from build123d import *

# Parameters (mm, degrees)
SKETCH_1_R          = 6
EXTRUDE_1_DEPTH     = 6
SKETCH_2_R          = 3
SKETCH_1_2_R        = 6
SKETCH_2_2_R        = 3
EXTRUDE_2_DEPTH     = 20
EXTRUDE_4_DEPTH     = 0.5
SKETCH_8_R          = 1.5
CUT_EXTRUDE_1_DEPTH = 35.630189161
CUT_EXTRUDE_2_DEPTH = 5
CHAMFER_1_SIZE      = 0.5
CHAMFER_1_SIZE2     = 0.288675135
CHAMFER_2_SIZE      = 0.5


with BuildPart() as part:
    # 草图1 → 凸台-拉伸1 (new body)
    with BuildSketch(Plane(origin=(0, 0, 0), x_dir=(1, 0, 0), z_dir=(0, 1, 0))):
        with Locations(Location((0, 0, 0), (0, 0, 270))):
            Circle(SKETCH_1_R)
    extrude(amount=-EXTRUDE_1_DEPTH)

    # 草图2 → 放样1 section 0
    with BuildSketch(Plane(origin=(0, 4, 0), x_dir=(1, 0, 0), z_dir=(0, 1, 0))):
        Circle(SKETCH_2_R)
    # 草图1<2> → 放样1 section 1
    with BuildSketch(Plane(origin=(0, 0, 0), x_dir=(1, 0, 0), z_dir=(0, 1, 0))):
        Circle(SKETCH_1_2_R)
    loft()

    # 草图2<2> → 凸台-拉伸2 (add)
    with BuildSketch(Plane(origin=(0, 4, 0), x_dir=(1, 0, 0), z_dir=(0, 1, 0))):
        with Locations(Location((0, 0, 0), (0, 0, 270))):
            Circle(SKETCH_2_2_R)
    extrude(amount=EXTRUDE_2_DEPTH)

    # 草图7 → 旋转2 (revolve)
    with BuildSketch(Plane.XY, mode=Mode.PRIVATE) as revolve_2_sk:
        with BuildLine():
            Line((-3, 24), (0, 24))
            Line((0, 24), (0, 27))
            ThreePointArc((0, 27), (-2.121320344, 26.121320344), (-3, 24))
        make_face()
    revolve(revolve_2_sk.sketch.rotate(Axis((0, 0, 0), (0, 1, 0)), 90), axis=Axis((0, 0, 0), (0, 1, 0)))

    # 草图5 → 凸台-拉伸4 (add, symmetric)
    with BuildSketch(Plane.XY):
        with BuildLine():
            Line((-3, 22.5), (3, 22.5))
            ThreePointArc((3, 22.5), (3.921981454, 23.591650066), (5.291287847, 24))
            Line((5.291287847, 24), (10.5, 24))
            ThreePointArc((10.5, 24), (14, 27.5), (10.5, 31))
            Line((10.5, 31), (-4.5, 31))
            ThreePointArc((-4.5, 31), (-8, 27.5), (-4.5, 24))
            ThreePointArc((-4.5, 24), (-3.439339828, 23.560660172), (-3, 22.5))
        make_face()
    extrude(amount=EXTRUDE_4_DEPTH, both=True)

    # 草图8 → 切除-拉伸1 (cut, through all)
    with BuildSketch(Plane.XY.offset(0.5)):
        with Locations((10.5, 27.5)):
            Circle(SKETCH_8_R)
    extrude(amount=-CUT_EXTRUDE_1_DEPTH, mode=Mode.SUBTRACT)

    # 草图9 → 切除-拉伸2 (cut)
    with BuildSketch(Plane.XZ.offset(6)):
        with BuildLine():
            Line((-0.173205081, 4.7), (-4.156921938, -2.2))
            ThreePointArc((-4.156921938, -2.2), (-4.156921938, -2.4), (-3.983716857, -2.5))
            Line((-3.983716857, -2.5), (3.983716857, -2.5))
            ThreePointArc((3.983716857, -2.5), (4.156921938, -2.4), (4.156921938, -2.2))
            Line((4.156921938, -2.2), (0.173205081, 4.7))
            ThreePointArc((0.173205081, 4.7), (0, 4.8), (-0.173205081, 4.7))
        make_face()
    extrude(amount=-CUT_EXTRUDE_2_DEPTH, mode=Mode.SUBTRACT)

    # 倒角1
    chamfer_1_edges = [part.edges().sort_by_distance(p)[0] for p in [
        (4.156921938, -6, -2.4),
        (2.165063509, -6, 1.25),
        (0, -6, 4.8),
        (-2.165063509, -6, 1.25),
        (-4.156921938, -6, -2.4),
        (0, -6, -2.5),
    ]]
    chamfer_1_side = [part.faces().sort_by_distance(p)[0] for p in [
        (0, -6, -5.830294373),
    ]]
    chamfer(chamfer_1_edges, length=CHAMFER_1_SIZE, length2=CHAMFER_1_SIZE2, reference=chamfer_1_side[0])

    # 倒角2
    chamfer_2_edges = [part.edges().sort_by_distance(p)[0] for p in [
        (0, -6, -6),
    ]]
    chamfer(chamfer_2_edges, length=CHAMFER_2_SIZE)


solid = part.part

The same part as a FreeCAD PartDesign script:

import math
import FreeCAD as App
import Part
import Sketcher
Q = App.Units.Quantity


def edges_at(feature, points):
    """Names of the edges that pass closest to the given points."""
    edges = feature.Shape.Edges
    near = lambda p: min(range(len(edges)), key=lambda i: edges[i].distToShape(Part.Vertex(*p))[0])
    return sorted({f"Edge{near(p) + 1}" for p in points})

doc = App.newDocument("Part")
body = doc.addObject("PartDesign::Body", "Body")

# Sketch on XZ plane
sketch1 = doc.addObject("Sketcher::SketchObject", "Sketch")
body.addObject(sketch1)
sketch1.AttachmentSupport = (doc.XZ_Plane, [""])
sketch1.MapMode = "FlatFace"
sketch1.addGeometry(Part.Circle(App.Vector(0, 0, 0), App.Vector(0, 0, 1), 6), False)
sketch1.addConstraint(Sketcher.Constraint("Coincident", 0, 3, -1, 1))
sketch1.addConstraint(Sketcher.Constraint("Diameter", 0, Q("12 mm")))
pad1 = doc.addObject("PartDesign::Pad", "Pad")
body.addObject(pad1)
pad1.Profile = sketch1
pad1.Length = 6

# Sketch on XZ plane
sketch2 = doc.addObject("Sketcher::SketchObject", "Sketch001")
body.addObject(sketch2)
sketch2.AttachmentSupport = (doc.XZ_Plane, [""])
sketch2.MapMode = "FlatFace"
sketch2.AttachmentOffset = App.Placement(App.Vector(0, 0, -4), App.Rotation())
sketch2.addGeometry(Part.Circle(App.Vector(0, 0, 0), App.Vector(0, 0, 1), 3), False)
sketch2.addConstraint(Sketcher.Constraint("Coincident", 0, 3, -1, 1))
sketch2.addConstraint(Sketcher.Constraint("Diameter", 0, Q("6 mm")))

# Sketch on XZ plane
sketch3 = doc.addObject("Sketcher::SketchObject", "Sketch002")
body.addObject(sketch3)
sketch3.AttachmentSupport = (doc.XZ_Plane, [""])
sketch3.MapMode = "FlatFace"
sketch3.addGeometry(Part.Circle(App.Vector(0, 0, 0), App.Vector(0, 0, 1), 6), False)
sketch3.addConstraint(Sketcher.Constraint("Coincident", 0, 3, -1, 1))
sketch3.addConstraint(Sketcher.Constraint("Diameter", 0, Q("12 mm")))

additiveloft = doc.addObject("PartDesign::AdditiveLoft", "AdditiveLoft")
body.addObject(additiveloft)
additiveloft.Profile = sketch2
additiveloft.Sections = [sketch3]

# Sketch on XZ plane
sketch4 = doc.addObject("Sketcher::SketchObject", "Sketch003")
body.addObject(sketch4)
sketch4.AttachmentSupport = (doc.XZ_Plane, [""])
sketch4.MapMode = "FlatFace"
sketch4.AttachmentOffset = App.Placement(App.Vector(0, 0, -4), App.Rotation())
sketch4.addGeometry(Part.Circle(App.Vector(0, 0, 0), App.Vector(0, 0, 1), 3), False)
sketch4.addConstraint(Sketcher.Constraint("Coincident", 0, 3, -1, 1))
sketch4.addConstraint(Sketcher.Constraint("Diameter", 0, Q("6 mm")))
pad2 = doc.addObject("PartDesign::Pad", "Pad001")
body.addObject(pad2)
pad2.Profile = sketch4
pad2.Length = 20
pad2.Reversed = True

# Sketch on XY plane
sketch5 = doc.addObject("Sketcher::SketchObject", "Sketch004")
body.addObject(sketch5)
sketch5.AttachmentSupport = (doc.XY_Plane, [""])
sketch5.MapMode = "FlatFace"
sketch5.addGeometry(Part.LineSegment(App.Vector(-3, 24, 0), App.Vector(0, 24, 0)), False)
sketch5.addGeometry(Part.LineSegment(App.Vector(0, 24, 0), App.Vector(0, 27, 0)), False)
sketch5.addGeometry(Part.ArcOfCircle(Part.Circle(App.Vector(0, 24, 0), App.Vector(0, 0, 1), 3), math.radians(90), math.radians(180)), False)
sketch5.addConstraint(Sketcher.Constraint("Coincident", 0, 2, 1, 1))
sketch5.addConstraint(Sketcher.Constraint("Coincident", 1, 2, 2, 1))
sketch5.addConstraint(Sketcher.Constraint("Coincident", 2, 2, 0, 1))
sketch5.addConstraint(Sketcher.Constraint("Horizontal", 0))
sketch5.addConstraint(Sketcher.Constraint("Vertical", 1))
sketch5.addConstraint(Sketcher.Constraint("Coincident", 0, 2, 2, 3))
sketch5.addConstraint(Sketcher.Constraint("PointOnObject", 2, 3, -2))
sketch5.addConstraint(Sketcher.Constraint("Radius", 2, Q("3 mm")))
sketch5.addConstraint(Sketcher.Constraint("DistanceY", -1, 1, 2, 3, Q("24 mm")))
revolution = doc.addObject("PartDesign::Revolution", "Revolution")
body.addObject(revolution)
revolution.Profile = sketch5
revolution.ReferenceAxis = (sketch5, ["V_Axis"])
revolution.Angle = 360

# Sketch on XY plane
sketch6 = doc.addObject("Sketcher::SketchObject", "Sketch005")
body.addObject(sketch6)
sketch6.AttachmentSupport = (doc.XY_Plane, [""])
sketch6.MapMode = "FlatFace"
sketch6.addGeometry(Part.LineSegment(App.Vector(-3, 22.5, 0), App.Vector(3, 22.5, 0)), False)
sketch6.addGeometry(Part.ArcOfCircle(Part.Circle(App.Vector(5.291288, 21.5, 0), App.Vector(0, 0, 1), 2.5), math.radians(90), math.radians(156.421821)), False)
sketch6.addGeometry(Part.LineSegment(App.Vector(5.291288, 24, 0), App.Vector(10.5, 24, 0)), False)
sketch6.addGeometry(Part.ArcOfCircle(Part.Circle(App.Vector(10.5, 27.5, 0), App.Vector(0, 0, 1), 3.5), math.radians(-90), math.radians(90)), False)
sketch6.addGeometry(Part.LineSegment(App.Vector(10.5, 31, 0), App.Vector(-4.5, 31, 0)), False)
sketch6.addGeometry(Part.ArcOfCircle(Part.Circle(App.Vector(-4.5, 27.5, 0), App.Vector(0, 0, 1), 3.5), math.radians(90), math.radians(270)), False)
sketch6.addGeometry(Part.ArcOfCircle(Part.Circle(App.Vector(-4.5, 22.5, 0), App.Vector(0, 0, 1), 1.5), math.radians(0), math.radians(90)), False)
sketch6.addConstraint(Sketcher.Constraint("Coincident", 0, 2, 1, 2))
sketch6.addConstraint(Sketcher.Constraint("Tangent", 1, 1, 2, 1))
sketch6.addConstraint(Sketcher.Constraint("Tangent", 2, 2, 3, 1))
sketch6.addConstraint(Sketcher.Constraint("Tangent", 3, 2, 4, 1))
sketch6.addConstraint(Sketcher.Constraint("Tangent", 4, 2, 5, 1))
sketch6.addConstraint(Sketcher.Constraint("Tangent", 5, 2, 6, 2))
sketch6.addConstraint(Sketcher.Constraint("Coincident", 6, 1, 0, 1))
sketch6.addConstraint(Sketcher.Constraint("Horizontal", 0))
sketch6.addConstraint(Sketcher.Constraint("Horizontal", 2))
sketch6.addConstraint(Sketcher.Constraint("Horizontal", 4))
sketch6.addConstraint(Sketcher.Constraint("Equal", 3, 5))
sketch6.addConstraint(Sketcher.Constraint("Horizontal", 6, 3, 0, 2))
sketch6.addConstraint(Sketcher.Constraint("Vertical", 5, 3, 6, 3))
sketch6.addConstraint(Sketcher.Constraint("Radius", 1, Q("2.5 mm")))
sketch6.addConstraint(Sketcher.Constraint("Radius", 3, Q("3.5 mm")))
sketch6.addConstraint(Sketcher.Constraint("Radius", 6, Q("1.5 mm")))
sketch6.addConstraint(Sketcher.Constraint("DistanceX", 0, 1, 0, 2, Q("6 mm")))
sketch6.addConstraint(Sketcher.Constraint("DistanceX", 4, 2, 4, 1, Q("15 mm")))
sketch6.addConstraint(Sketcher.Constraint("DistanceX", -1, 1, 0, 2, Q("3 mm")))
sketch6.addConstraint(Sketcher.Constraint("DistanceY", -1, 1, 1, 1, Q("24 mm")))
pad3 = doc.addObject("PartDesign::Pad", "Pad002")
body.addObject(pad3)
pad3.Profile = sketch6
pad3.Length = 1
pad3.Midplane = True

# Sketch on XY plane
sketch7 = doc.addObject("Sketcher::SketchObject", "Sketch006")
body.addObject(sketch7)
sketch7.AttachmentSupport = (doc.XY_Plane, [""])
sketch7.MapMode = "FlatFace"
sketch7.AttachmentOffset = App.Placement(App.Vector(0, 0, 0.5), App.Rotation())
sketch7.addGeometry(Part.Circle(App.Vector(10.5, 27.5, 0), App.Vector(0, 0, 1), 1.5), False)
sketch7.addConstraint(Sketcher.Constraint("Diameter", 0, Q("3 mm")))
sketch7.addConstraint(Sketcher.Constraint("DistanceX", -1, 1, 0, 3, Q("10.5 mm")))
sketch7.addConstraint(Sketcher.Constraint("DistanceY", -1, 1, 0, 3, Q("27.5 mm")))
pocket1 = doc.addObject("PartDesign::Pocket", "Pocket")
body.addObject(pocket1)
pocket1.Profile = sketch7
pocket1.Type = "ThroughAll"

# Sketch on XZ plane
sketch8 = doc.addObject("Sketcher::SketchObject", "Sketch007")
body.addObject(sketch8)
sketch8.AttachmentSupport = (doc.XZ_Plane, [""])
sketch8.MapMode = "FlatFace"
sketch8.AttachmentOffset = App.Placement(App.Vector(0, 0, 6), App.Rotation())
sketch8.addGeometry(Part.LineSegment(App.Vector(-0.173205, 4.7, 0), App.Vector(-4.156922, -2.2, 0)), False)
sketch8.addGeometry(Part.ArcOfCircle(Part.Circle(App.Vector(-3.983717, -2.3, 0), App.Vector(0, 0, 1), 0.2), math.radians(150), math.radians(270)), False)
sketch8.addGeometry(Part.LineSegment(App.Vector(-3.983717, -2.5, 0), App.Vector(3.983717, -2.5, 0)), False)
sketch8.addGeometry(Part.ArcOfCircle(Part.Circle(App.Vector(3.983717, -2.3, 0), App.Vector(0, 0, 1), 0.2), math.radians(-90), math.radians(30)), False)
sketch8.addGeometry(Part.LineSegment(App.Vector(4.156922, -2.2, 0), App.Vector(0.173205, 4.7, 0)), False)
sketch8.addGeometry(Part.ArcOfCircle(Part.Circle(App.Vector(0, 4.6, 0), App.Vector(0, 0, 1), 0.2), math.radians(30), math.radians(150)), False)
sketch8.addConstraint(Sketcher.Constraint("Tangent", 0, 2, 1, 1))
sketch8.addConstraint(Sketcher.Constraint("Tangent", 1, 2, 2, 1))
sketch8.addConstraint(Sketcher.Constraint("Tangent", 2, 2, 3, 1))
sketch8.addConstraint(Sketcher.Constraint("Tangent", 3, 2, 4, 1))
sketch8.addConstraint(Sketcher.Constraint("Tangent", 4, 2, 5, 1))
sketch8.addConstraint(Sketcher.Constraint("Tangent", 5, 2, 0, 1))
sketch8.addConstraint(Sketcher.Constraint("Horizontal", 2))
sketch8.addConstraint(Sketcher.Constraint("Equal", 1, 3))
sketch8.addConstraint(Sketcher.Constraint("Equal", 3, 5))
sketch8.addConstraint(Sketcher.Constraint("Symmetric", 0, 2, 3, 2, -2))
sketch8.addConstraint(Sketcher.Constraint("Radius", 1, Q("0.2 mm")))
sketch8.addConstraint(Sketcher.Constraint("Angle", 0, Q("-120 deg")))
sketch8.addConstraint(Sketcher.Constraint("DistanceY", 3, 3, 4, 2, Q("7 mm")))
sketch8.addConstraint(Sketcher.Constraint("DistanceY", 1, 3, -1, 1, Q("2.3 mm")))
pocket2 = doc.addObject("PartDesign::Pocket", "Pocket001")
body.addObject(pocket2)
pocket2.Profile = sketch8
pocket2.Length = 5
doc.recompute()

chamfer = doc.addObject("PartDesign::Chamfer", "Chamfer")
body.addObject(chamfer)
chamfer.Base = (pocket2, edges_at(pocket2, [
    (4.157, -6, -2.4),
    (2.165, -6, 1.25),
    (0, -6, 4.8),
    (-2.165, -6, 1.25),
    (-4.157, -6, -2.4),
    (0, -6, -2.5),
]))
chamfer.ChamferType = "Two distances"
chamfer.Size = 0.5
chamfer.Size2 = 0.288675
doc.recompute()

chamfer2 = doc.addObject("PartDesign::Chamfer", "Chamfer001")
body.addObject(chamfer2)
chamfer2.Base = (chamfer, edges_at(chamfer, [(0, -6, -6)]))
chamfer2.Size = 0.5

doc.recompute()
